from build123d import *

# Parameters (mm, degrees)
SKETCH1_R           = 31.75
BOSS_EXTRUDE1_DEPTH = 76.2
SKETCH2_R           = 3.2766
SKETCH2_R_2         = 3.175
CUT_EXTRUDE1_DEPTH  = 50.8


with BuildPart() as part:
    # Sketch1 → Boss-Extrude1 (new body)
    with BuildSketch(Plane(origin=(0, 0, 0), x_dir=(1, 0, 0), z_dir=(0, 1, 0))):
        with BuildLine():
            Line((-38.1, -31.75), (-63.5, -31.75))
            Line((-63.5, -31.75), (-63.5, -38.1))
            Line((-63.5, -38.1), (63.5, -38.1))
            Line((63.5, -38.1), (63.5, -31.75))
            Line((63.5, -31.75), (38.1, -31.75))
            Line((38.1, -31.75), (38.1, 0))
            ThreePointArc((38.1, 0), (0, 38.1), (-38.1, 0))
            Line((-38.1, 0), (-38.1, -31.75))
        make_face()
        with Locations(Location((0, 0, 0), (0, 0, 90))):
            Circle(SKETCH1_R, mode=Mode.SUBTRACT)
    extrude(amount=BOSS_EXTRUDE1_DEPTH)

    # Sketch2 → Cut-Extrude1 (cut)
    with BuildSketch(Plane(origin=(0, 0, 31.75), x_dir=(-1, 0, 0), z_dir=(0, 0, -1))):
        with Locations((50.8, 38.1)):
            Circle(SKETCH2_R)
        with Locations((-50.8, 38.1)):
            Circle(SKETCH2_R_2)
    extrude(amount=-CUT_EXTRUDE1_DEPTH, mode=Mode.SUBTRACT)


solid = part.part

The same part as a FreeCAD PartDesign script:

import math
import FreeCAD as App
import Part
import Sketcher
from FreeCAD import Vector
Q = App.Units.Quantity

doc = App.newDocument("Part")
body = doc.addObject("PartDesign::Body", "Body")

sketch1 = doc.addObject("Sketcher::SketchObject", "Sketch")
body.addObject(sketch1)
sketch1.AttachmentSupport = (doc.XZ_Plane, [""])
sketch1.MapMode = "FlatFace"
sketch1.addGeometry(Part.LineSegment(Vector(-38.1, 31.75, 0), Vector(-63.5, 31.75, 0)), False)
sketch1.addGeometry(Part.LineSegment(Vector(-63.5, 31.75, 0), Vector(-63.5, 38.1, 0)), False)
sketch1.addGeometry(Part.LineSegment(Vector(-63.5, 38.1, 0), Vector(63.5, 38.1, 0)), False)
sketch1.addGeometry(Part.LineSegment(Vector(63.5, 38.1, 0), Vector(63.5, 31.75, 0)), False)
sketch1.addGeometry(Part.LineSegment(Vector(63.5, 31.75, 0), Vector(38.1, 31.75, 0)), False)
sketch1.addGeometry(Part.LineSegment(Vector(38.1, 31.75, 0), Vector(38.1, 0, 0)), False)
sketch1.addGeometry(Part.ArcOfCircle(Part.Circle(Vector(0, 0, 0), Vector(0, 0, 1), 38.1), math.radians(180), math.radians(360)), False)
sketch1.addGeometry(Part.LineSegment(Vector(-38.1, 0, 0), Vector(-38.1, 31.75, 0)), False)
sketch1.addGeometry(Part.Circle(Vector(0, 0, 0), Vector(0, 0, 1), 31.75), False)
sketch1.addConstraint(Sketcher.Constraint("Coincident", 0, 2, 1, 1))
sketch1.addConstraint(Sketcher.Constraint("Coincident", 1, 2, 2, 1))
sketch1.addConstraint(Sketcher.Constraint("Coincident", 2, 2, 3, 1))
sketch1.addConstraint(Sketcher.Constraint("Coincident", 3, 2, 4, 1))
sketch1.addConstraint(Sketcher.Constraint("Coincident", 4, 2, 5, 1))
sketch1.addConstraint(Sketcher.Constraint("Tangent", 5, 2, 6, 2))
sketch1.addConstraint(Sketcher.Constraint("Tangent", 6, 1, 7, 1))
sketch1.addConstraint(Sketcher.Constraint("Coincident", 7, 2, 0, 1))
sketch1.addConstraint(Sketcher.Constraint("Horizontal", 0))
sketch1.addConstraint(Sketcher.Constraint("Vertical", 1))
sketch1.addConstraint(Sketcher.Constraint("Horizontal", 2))
sketch1.addConstraint(Sketcher.Constraint("Vertical", 3))
sketch1.addConstraint(Sketcher.Constraint("Horizontal", 4))
sketch1.addConstraint(Sketcher.Constraint("Vertical", 5))
sketch1.addConstraint(Sketcher.Constraint("Vertical", 7))
sketch1.addConstraint(Sketcher.Constraint("Coincident", 6, 3, -1, 1))
sketch1.addConstraint(Sketcher.Constraint("Coincident", 8, 3, -1, 1))
sketch1.addConstraint(Sketcher.Constraint("Symmetric", 0, 2, 3, 2, -2))
sketch1.addConstraint(Sketcher.Constraint("Diameter", 8, Q("2.5 in")))
sketch1.addConstraint(Sketcher.Constraint("Radius", 6, Q("1.5 in")))
sketch1.addConstraint(Sketcher.Constraint("DistanceX", 0, 2, 0, 1, Q("1 in")))
sketch1.addConstraint(Sketcher.Constraint("DistanceY", 1, 1, 1, 2, Q("0.25 in")))
sketch1.addConstraint(Sketcher.Constraint("DistanceY", 5, 2, 5, 1, Q("1.25 in")))
pad1 = doc.addObject("PartDesign::Pad", "Pad")
body.addObject(pad1)
pad1.Profile = sketch1
pad1.Length = Q("3 in")
pad1.Reversed = True

sketch2 = doc.addObject("Sketcher::SketchObject", "Sketch001")
body.addObject(sketch2)
sketch2.AttachmentSupport = (doc.XY_Plane, [""])
sketch2.MapMode = "FlatFace"
sketch2.AttachmentOffset = App.Placement(Vector(0, 0, 1.25 * 25.4), App.Rotation())
sketch2.addGeometry(Part.Circle(Vector(-50.8, 38.1, 0), Vector(0, 0, 1), 3.2766), False)
sketch2.addGeometry(Part.Circle(Vector(50.8, 38.1, 0), Vector(0, 0, 1), 3.175), False)
sketch2.addConstraint(Sketcher.Constraint("Symmetric", 0, 3, 1, 3, -2))
sketch2.addConstraint(Sketcher.Constraint("Diameter", 1, Q("0.25 in")))
sketch2.addConstraint(Sketcher.Constraint("Diameter", 0, Q("0.258 in")))
sketch2.addConstraint(Sketcher.Constraint("DistanceX", 0, 3, -1, 1, Q("2 in")))
sketch2.addConstraint(Sketcher.Constraint("DistanceY", -1, 1, 0, 3, Q("1.5 in")))
pocket1 = doc.addObject("PartDesign::Pocket", "Pocket")
body.addObject(pocket1)
pocket1.Profile = sketch2
pocket1.Length = Q("2 in")
pocket1.Reversed = True

doc.recompute()
